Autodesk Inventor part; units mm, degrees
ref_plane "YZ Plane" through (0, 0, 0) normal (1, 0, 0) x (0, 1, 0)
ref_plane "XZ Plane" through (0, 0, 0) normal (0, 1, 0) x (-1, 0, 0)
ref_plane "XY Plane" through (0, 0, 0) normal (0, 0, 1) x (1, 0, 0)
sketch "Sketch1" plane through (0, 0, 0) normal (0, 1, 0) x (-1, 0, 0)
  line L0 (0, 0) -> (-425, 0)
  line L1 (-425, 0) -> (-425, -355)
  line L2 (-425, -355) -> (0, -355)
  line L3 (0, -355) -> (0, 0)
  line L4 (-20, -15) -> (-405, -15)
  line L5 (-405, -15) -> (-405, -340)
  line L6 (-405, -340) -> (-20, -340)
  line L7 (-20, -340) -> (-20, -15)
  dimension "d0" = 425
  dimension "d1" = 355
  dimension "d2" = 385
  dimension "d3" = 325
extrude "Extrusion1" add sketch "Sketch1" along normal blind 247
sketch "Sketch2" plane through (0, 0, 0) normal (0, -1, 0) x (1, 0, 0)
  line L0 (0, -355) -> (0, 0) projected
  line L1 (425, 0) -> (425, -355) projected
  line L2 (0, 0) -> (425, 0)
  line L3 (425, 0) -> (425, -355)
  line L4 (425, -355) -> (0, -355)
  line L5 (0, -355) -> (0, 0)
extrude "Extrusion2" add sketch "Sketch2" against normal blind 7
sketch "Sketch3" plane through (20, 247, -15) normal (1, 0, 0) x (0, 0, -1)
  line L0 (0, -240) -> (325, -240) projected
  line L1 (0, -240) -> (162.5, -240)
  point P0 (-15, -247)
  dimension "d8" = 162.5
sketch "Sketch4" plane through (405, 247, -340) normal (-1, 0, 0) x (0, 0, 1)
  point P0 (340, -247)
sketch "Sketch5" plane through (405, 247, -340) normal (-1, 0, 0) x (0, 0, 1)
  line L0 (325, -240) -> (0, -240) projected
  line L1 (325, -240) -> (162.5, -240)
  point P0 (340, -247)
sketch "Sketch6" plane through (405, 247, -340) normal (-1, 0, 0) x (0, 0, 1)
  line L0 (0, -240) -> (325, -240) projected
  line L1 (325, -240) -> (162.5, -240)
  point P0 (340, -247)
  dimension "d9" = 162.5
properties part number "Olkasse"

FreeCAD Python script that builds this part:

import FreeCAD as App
import Part
import Sketcher
from FreeCAD import Vector


def add_polygon(sketch, points):
    """Adds a closed chain of lines whose ends are joined by coincident constraints."""
    first, n = sketch.GeometryCount, len(points)
    for a, b in zip(points, points[1:] + points[:1]):
        sketch.addGeometry(Part.LineSegment(App.Vector(*a, 0), App.Vector(*b, 0)), False)
    for i in range(n):
        sketch.addConstraint(Sketcher.Constraint("Coincident", first + i, 2, first + (i + 1) % n, 1))

doc = App.newDocument("Part")
body = doc.addObject("PartDesign::Body", "Body")

# Sketch on XZ plane
sketch1 = body.newObject("Sketcher::SketchObject", "Sketch")
sketch1.AttachmentSupport = (doc.getObject("XZ_Plane"), [""])
sketch1.MapMode = "FlatFace"
add_polygon(sketch1, [(0, -355), (0, 0), (425, 0), (425, -355)])  # lines 0-3
add_polygon(sketch1, [(405, -15), (20, -15), (20, -340), (405, -340)])  # lines 4-7
sketch1.addConstraint(Sketcher.Constraint("Vertical", 0))
sketch1.addConstraint(Sketcher.Constraint("Horizontal", 1))
sketch1.addConstraint(Sketcher.Constraint("Vertical", 2))
sketch1.addConstraint(Sketcher.Constraint("Horizontal", 3))
sketch1.addConstraint(Sketcher.Constraint("Horizontal", 4))
sketch1.addConstraint(Sketcher.Constraint("Vertical", 5))
sketch1.addConstraint(Sketcher.Constraint("Horizontal", 6))
sketch1.addConstraint(Sketcher.Constraint("Vertical", 7))
sketch1.addConstraint(Sketcher.Constraint("Coincident", 0, 2, -1, 1))
sketch1.addConstraint(Sketcher.Constraint("DistanceX", 1, 1, 1, 2, 425.0))
sketch1.addConstraint(Sketcher.Constraint("DistanceX", 4, 2, 4, 1, 385.0))
sketch1.addConstraint(Sketcher.Constraint("DistanceY", 0, 1, 0, 2, 355.0))
sketch1.addConstraint(Sketcher.Constraint("DistanceY", 5, 2, 5, 1, 325.0))
sketch1.addConstraint(Sketcher.Constraint("DistanceX", -1, 1, 4, 2, 20.0))
sketch1.addConstraint(Sketcher.Constraint("DistanceY", 4, 2, -1, 1, 15.0))
pad1 = body.newObject("PartDesign::Pad", "Pad")
pad1.Profile = sketch1
pad1.Length = 247
pad1.Reversed = True

# Sketch on XZ plane
sketch2 = body.newObject("Sketcher::SketchObject", "Sketch001")
sketch2.AttachmentSupport = (doc.getObject("XZ_Plane"), [""])
sketch2.MapMode = "FlatFace"
add_polygon(sketch2, [(0, 0), (0, -355), (425, -355), (425, 0)])  # lines 0-3
sketch2.addConstraint(Sketcher.Constraint("Vertical", 0))
sketch2.addConstraint(Sketcher.Constraint("Horizontal", 1))
sketch2.addConstraint(Sketcher.Constraint("Vertical", 2))
sketch2.addConstraint(Sketcher.Constraint("Horizontal", 3))
sketch2.addConstraint(Sketcher.Constraint("Coincident", 3, 2, -1, 1))
sketch2.addConstraint(Sketcher.Constraint("DistanceX", 1, 1, 1, 2, 425.0))
sketch2.addConstraint(Sketcher.Constraint("DistanceY", 0, 2, 0, 1, 355.0))
pad2 = body.newObject("PartDesign::Pad", "Pad001")
pad2.Profile = sketch2
pad2.Length = 7
pad2.Reversed = True

doc.recompute()
